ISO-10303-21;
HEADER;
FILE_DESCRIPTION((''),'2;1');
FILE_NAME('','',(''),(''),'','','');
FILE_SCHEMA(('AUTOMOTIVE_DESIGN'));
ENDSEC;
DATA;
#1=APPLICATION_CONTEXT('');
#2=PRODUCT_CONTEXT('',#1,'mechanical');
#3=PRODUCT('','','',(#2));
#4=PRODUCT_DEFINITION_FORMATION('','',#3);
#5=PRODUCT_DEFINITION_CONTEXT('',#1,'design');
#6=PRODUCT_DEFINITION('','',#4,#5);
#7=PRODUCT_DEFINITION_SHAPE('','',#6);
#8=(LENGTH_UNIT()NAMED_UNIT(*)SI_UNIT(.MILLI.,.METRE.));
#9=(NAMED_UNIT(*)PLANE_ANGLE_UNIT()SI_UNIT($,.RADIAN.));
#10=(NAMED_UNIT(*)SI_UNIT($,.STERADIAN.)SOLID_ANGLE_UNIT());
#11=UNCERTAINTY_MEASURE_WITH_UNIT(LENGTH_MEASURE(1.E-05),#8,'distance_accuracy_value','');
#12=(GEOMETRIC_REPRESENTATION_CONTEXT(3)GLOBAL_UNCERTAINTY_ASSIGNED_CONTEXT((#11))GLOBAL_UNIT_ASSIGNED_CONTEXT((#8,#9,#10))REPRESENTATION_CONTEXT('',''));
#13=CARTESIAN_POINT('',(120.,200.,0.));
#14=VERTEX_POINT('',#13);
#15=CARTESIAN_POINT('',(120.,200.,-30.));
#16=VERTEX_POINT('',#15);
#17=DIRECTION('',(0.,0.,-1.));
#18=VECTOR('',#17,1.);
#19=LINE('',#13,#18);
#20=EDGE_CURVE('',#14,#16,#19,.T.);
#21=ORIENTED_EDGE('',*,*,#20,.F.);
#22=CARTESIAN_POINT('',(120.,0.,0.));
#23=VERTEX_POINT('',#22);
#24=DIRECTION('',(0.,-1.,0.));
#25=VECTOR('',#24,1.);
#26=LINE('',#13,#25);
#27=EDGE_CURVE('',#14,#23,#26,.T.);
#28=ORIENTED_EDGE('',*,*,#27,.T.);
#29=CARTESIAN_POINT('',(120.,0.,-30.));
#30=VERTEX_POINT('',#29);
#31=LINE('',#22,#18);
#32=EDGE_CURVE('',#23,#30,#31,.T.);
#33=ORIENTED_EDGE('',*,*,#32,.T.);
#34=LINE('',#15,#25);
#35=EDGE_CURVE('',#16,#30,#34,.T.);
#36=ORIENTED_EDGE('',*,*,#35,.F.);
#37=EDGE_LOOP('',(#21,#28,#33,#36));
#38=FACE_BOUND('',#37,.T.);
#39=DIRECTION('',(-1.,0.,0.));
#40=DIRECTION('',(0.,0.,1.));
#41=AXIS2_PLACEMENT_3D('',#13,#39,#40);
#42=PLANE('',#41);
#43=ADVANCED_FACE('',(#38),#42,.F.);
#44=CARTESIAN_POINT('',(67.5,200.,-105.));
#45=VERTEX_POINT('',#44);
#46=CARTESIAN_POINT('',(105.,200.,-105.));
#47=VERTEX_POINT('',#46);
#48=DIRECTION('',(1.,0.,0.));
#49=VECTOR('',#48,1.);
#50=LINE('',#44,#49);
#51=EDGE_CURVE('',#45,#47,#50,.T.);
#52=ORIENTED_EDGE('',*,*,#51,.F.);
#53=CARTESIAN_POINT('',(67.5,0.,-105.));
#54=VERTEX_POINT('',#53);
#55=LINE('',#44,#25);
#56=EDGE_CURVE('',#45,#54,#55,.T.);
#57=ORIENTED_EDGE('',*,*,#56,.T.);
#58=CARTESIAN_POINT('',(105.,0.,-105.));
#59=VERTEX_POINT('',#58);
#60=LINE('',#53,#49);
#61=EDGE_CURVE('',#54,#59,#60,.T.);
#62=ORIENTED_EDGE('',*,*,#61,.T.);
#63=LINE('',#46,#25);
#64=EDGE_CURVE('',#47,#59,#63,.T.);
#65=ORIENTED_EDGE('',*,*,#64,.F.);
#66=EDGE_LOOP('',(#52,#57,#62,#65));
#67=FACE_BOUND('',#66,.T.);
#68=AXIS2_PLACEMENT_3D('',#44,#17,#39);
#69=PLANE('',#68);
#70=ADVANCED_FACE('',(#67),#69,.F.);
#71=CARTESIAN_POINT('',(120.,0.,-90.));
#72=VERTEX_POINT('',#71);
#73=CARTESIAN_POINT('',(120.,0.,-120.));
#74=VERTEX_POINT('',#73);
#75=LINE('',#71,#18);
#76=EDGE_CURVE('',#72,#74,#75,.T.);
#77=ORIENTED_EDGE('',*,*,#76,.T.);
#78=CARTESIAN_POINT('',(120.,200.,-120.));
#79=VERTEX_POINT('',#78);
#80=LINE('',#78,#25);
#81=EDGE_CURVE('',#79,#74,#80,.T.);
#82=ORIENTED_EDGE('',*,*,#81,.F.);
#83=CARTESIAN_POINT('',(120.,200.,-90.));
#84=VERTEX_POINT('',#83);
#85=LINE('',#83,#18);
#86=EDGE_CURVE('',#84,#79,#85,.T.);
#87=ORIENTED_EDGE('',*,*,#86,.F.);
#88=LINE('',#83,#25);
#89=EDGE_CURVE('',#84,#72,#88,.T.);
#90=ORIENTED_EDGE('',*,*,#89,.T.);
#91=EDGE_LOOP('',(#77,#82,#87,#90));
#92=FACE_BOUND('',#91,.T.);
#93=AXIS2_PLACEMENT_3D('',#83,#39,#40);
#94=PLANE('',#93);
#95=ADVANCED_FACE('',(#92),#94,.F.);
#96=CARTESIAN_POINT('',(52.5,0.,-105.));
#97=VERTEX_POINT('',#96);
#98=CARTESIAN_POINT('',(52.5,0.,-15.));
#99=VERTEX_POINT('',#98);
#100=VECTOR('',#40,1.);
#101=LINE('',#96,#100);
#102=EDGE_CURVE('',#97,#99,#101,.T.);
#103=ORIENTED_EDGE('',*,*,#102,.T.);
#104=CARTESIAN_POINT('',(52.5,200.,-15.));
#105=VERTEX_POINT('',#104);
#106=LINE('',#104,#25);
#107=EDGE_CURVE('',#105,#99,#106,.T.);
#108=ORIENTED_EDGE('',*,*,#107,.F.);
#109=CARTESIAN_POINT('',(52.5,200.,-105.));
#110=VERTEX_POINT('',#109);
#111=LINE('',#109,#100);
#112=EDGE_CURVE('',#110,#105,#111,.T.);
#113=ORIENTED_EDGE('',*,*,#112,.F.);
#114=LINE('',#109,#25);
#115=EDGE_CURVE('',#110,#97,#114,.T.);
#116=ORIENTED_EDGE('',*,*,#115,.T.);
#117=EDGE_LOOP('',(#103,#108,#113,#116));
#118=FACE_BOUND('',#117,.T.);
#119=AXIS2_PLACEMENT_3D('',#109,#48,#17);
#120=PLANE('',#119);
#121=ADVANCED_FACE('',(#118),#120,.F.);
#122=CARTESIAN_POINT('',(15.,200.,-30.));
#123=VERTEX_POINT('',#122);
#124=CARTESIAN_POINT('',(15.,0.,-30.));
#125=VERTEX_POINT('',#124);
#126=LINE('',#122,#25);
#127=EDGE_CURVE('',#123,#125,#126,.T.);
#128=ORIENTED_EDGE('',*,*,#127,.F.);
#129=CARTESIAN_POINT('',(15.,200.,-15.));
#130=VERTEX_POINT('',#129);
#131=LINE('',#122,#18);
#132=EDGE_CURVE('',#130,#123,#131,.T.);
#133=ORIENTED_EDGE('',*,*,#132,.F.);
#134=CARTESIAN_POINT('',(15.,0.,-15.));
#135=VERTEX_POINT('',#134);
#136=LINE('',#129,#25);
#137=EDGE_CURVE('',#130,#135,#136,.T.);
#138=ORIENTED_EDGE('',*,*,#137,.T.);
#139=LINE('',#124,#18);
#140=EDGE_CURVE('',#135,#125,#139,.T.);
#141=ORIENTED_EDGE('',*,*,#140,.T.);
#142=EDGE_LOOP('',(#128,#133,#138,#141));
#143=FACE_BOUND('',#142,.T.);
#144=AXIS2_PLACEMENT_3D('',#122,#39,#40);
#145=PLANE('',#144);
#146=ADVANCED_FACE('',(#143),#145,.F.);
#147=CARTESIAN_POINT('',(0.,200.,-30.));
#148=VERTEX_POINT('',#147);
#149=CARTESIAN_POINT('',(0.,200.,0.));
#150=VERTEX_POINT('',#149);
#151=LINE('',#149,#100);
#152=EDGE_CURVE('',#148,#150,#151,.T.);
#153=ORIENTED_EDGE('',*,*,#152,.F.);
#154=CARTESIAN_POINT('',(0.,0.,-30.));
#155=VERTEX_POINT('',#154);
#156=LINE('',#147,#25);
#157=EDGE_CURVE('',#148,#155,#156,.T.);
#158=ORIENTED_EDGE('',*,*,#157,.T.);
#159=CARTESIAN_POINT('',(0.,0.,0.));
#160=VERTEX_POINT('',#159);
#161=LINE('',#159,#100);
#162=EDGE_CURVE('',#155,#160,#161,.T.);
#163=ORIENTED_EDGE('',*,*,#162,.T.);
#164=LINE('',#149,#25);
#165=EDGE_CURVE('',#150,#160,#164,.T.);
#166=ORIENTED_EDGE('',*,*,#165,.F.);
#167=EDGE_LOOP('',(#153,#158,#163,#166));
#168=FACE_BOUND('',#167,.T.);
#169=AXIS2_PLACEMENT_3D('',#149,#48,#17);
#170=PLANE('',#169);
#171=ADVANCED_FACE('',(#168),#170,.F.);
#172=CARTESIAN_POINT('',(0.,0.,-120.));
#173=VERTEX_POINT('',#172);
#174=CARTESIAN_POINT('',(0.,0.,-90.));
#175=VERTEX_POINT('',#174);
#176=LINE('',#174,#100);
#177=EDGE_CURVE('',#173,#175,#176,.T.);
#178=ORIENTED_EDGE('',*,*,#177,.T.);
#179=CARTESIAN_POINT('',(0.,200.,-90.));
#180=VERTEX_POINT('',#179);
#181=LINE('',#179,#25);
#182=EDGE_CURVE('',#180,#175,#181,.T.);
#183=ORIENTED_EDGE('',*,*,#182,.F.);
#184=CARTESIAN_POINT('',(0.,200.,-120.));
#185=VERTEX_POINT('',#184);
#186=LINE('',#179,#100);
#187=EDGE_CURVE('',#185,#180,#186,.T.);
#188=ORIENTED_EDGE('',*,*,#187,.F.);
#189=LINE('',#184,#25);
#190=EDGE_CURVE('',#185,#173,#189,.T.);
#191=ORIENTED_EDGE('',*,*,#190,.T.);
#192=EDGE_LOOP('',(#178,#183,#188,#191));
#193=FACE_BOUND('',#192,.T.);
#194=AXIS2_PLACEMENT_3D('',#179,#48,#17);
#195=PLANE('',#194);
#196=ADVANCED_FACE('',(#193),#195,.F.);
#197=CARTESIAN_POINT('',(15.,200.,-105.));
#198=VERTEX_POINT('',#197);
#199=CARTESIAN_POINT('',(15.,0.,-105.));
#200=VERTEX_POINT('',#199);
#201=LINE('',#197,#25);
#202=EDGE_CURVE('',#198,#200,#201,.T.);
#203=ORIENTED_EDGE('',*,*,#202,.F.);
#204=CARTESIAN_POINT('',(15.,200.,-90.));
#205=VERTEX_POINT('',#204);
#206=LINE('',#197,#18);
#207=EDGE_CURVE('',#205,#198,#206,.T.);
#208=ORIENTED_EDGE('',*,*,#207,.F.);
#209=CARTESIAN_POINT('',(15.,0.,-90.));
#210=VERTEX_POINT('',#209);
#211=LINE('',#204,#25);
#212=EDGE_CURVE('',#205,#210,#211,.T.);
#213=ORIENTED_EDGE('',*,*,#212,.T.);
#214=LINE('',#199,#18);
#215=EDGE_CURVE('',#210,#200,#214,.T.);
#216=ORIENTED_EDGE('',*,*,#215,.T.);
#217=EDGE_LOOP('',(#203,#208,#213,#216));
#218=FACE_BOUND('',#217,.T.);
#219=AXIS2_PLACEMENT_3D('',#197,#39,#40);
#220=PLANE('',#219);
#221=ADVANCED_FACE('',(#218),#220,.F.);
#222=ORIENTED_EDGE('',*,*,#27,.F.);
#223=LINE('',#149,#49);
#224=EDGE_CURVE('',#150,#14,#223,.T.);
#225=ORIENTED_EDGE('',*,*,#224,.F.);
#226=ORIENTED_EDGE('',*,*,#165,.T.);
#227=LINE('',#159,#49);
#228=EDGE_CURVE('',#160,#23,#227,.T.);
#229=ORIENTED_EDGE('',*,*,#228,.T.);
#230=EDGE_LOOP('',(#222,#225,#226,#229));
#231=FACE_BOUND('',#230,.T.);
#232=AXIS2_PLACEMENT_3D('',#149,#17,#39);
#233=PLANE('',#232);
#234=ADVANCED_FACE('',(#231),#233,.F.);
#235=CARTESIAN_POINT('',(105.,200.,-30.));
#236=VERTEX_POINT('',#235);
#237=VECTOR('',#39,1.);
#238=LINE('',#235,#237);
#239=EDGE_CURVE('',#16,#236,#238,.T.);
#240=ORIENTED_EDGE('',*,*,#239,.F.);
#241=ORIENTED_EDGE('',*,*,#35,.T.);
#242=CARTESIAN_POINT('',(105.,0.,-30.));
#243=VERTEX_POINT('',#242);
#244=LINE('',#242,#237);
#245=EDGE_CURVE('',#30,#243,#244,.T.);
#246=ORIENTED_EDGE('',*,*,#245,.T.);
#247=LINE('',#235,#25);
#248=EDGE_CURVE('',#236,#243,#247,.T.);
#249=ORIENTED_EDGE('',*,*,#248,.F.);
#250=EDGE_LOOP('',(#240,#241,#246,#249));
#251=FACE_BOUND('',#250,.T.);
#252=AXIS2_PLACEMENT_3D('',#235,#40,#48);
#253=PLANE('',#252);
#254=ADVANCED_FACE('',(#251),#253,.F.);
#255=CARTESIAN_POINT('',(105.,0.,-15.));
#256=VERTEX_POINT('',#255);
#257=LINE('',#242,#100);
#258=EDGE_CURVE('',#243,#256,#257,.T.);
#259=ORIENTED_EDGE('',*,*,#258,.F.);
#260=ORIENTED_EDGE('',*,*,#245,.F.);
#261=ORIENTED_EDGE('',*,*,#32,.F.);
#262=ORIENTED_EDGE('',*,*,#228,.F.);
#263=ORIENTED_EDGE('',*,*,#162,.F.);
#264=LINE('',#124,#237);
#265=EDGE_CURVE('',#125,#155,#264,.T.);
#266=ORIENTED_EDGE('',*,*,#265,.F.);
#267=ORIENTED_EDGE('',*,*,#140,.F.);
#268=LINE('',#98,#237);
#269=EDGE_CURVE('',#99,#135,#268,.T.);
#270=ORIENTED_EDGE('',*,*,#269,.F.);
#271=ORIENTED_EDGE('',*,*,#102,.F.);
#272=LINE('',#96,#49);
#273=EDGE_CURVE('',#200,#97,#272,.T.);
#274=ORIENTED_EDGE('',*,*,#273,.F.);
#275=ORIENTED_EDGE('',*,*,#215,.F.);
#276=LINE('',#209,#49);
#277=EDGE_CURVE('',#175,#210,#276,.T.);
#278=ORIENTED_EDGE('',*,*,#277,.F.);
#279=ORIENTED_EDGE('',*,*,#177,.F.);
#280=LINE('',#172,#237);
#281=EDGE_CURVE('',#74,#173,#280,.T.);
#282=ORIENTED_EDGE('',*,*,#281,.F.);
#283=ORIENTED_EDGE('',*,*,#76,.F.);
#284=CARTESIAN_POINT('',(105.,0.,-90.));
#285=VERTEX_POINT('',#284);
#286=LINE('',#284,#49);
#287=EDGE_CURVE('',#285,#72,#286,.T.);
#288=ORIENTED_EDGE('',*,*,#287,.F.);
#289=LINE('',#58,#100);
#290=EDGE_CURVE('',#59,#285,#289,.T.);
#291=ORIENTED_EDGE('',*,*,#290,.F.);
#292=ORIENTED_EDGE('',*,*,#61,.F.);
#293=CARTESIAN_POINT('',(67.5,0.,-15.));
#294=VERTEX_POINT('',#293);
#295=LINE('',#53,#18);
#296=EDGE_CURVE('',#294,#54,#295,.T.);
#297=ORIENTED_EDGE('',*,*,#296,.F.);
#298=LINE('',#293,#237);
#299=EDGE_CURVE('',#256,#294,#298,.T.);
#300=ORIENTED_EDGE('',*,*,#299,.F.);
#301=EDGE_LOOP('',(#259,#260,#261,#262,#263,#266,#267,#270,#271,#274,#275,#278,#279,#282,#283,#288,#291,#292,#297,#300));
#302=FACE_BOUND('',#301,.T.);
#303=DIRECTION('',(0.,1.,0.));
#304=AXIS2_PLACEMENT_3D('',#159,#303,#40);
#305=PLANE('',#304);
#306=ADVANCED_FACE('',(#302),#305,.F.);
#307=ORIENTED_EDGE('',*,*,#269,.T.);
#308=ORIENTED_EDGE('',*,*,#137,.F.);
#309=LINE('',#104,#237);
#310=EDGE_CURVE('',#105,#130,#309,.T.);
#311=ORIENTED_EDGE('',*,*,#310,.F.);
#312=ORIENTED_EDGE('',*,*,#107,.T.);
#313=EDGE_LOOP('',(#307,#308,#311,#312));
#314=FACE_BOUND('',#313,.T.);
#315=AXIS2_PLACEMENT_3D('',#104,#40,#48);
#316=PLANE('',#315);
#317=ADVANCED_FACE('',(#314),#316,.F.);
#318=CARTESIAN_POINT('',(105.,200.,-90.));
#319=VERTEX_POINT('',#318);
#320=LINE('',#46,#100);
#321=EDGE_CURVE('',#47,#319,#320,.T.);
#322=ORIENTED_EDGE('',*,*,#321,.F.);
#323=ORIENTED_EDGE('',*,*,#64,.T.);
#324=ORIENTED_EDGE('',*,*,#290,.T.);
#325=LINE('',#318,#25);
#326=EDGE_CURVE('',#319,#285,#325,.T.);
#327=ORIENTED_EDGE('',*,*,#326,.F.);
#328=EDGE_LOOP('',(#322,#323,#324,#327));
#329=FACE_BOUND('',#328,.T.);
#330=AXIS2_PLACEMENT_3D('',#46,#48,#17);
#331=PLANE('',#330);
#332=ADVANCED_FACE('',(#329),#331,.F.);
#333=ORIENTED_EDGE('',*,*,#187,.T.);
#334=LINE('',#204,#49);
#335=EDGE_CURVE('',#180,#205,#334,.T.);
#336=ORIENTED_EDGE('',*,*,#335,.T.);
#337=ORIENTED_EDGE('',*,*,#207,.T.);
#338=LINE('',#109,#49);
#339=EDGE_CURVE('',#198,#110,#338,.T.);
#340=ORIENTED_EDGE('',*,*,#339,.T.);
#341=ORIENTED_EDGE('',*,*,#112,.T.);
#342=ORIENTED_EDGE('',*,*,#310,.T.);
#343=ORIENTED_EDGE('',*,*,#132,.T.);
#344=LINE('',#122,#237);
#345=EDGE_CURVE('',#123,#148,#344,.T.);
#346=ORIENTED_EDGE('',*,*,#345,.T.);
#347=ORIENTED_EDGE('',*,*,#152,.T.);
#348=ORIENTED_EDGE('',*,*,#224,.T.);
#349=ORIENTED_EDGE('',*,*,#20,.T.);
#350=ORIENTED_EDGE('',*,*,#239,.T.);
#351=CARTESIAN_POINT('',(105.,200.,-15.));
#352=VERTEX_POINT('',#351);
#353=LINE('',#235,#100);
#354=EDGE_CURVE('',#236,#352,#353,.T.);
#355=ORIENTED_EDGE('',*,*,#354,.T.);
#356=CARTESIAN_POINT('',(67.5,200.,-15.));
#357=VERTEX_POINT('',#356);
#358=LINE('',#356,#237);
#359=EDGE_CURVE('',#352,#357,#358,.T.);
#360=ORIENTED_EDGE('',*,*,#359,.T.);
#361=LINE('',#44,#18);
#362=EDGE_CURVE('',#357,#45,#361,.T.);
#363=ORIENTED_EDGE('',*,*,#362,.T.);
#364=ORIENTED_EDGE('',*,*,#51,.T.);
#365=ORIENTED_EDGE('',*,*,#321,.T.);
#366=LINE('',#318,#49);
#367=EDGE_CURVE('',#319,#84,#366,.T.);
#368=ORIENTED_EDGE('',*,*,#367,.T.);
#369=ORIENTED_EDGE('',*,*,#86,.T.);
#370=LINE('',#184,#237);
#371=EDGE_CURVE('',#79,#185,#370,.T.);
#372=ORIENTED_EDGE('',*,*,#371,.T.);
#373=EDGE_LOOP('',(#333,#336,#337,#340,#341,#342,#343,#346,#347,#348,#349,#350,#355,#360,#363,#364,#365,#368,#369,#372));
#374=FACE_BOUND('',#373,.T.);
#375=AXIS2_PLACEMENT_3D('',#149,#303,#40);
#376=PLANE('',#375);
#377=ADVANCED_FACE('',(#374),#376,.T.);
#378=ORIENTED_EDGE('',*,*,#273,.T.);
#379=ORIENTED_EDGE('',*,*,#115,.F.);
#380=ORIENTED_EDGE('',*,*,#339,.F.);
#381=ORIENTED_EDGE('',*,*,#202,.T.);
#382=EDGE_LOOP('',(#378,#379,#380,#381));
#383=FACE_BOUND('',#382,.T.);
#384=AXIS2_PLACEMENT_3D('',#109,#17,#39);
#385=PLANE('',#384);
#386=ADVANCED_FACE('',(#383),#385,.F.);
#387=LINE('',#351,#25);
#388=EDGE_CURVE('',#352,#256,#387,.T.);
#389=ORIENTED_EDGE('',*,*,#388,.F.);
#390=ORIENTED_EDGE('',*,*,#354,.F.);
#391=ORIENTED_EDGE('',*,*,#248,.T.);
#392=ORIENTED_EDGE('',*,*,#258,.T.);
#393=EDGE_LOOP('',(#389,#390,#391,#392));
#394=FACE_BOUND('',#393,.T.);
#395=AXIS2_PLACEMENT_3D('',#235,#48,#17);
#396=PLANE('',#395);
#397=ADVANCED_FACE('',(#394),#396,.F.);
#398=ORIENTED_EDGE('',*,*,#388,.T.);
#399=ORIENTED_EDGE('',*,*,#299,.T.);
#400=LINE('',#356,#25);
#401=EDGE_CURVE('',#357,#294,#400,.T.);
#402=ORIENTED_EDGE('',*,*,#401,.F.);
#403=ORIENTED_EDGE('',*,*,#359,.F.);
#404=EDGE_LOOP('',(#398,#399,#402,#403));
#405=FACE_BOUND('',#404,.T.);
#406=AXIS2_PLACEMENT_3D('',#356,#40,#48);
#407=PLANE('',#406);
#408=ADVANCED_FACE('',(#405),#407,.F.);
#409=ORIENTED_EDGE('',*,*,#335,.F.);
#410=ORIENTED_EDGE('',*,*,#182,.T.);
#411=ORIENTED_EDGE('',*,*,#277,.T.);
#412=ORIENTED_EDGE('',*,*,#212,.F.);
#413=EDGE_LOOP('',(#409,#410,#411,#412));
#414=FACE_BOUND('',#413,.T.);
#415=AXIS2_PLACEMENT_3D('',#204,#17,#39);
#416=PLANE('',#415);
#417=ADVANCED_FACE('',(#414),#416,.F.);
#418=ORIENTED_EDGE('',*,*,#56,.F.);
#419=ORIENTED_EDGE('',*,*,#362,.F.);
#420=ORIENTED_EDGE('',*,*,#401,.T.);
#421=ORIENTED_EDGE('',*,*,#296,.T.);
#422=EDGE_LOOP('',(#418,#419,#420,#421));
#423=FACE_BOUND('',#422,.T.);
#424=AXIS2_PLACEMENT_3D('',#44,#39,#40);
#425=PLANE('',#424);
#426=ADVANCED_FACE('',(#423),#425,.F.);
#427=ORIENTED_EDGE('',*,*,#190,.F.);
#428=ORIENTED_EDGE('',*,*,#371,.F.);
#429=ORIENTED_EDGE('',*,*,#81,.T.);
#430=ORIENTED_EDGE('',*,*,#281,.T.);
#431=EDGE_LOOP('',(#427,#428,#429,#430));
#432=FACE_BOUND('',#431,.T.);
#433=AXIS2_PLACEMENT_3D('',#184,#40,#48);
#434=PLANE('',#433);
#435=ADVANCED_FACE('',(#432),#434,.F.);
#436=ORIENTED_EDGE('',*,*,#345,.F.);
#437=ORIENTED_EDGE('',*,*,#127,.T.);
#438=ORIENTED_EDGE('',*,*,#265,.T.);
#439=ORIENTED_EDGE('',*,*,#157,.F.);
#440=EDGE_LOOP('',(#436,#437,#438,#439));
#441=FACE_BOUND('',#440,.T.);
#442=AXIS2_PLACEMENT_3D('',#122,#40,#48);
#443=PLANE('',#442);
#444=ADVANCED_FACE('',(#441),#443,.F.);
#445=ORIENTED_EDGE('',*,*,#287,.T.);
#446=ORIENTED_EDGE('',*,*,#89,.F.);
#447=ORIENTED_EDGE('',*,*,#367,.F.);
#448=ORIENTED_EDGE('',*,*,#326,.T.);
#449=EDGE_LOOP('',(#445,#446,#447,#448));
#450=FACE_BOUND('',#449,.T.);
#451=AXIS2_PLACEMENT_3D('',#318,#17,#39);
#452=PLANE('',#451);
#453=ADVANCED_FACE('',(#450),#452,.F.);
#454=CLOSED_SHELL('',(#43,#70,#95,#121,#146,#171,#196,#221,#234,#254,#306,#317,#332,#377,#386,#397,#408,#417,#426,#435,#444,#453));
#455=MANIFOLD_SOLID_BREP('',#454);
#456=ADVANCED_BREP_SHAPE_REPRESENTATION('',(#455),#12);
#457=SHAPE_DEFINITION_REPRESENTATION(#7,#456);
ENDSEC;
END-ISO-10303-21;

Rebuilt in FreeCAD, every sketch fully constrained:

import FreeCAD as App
import Part
import Sketcher
Q = App.Units.Quantity

doc = App.newDocument("Part")
body = doc.addObject("PartDesign::Body", "Body")

sketch1 = body.newObject("Sketcher::SketchObject", "Sketch")
sketch1.AttachmentSupport = (doc.getObject("XZ_Plane"), [""])
sketch1.MapMode = "FlatFace"
sketch1.addGeometry([
    Part.LineSegment(App.Vector(0, 0, 0), App.Vector(120, 0, 0)),
    Part.LineSegment(App.Vector(120, 0, 0), App.Vector(120, -30, 0)),
    Part.LineSegment(App.Vector(120, -30, 0), App.Vector(105, -30, 0)),
    Part.LineSegment(App.Vector(105, -30, 0), App.Vector(105, -15, 0)),
    Part.LineSegment(App.Vector(105, -15, 0), App.Vector(68, -15, 0)),
    Part.LineSegment(App.Vector(68, -15, 0), App.Vector(68, -105, 0)),
    Part.LineSegment(App.Vector(68, -105, 0), App.Vector(105, -105, 0)),
    Part.LineSegment(App.Vector(105, -105, 0), App.Vector(105, -90, 0)),
    Part.LineSegment(App.Vector(105, -90, 0), App.Vector(120, -90, 0)),
    Part.LineSegment(App.Vector(120, -90, 0), App.Vector(120, -120, 0)),
    Part.LineSegment(App.Vector(120, -120, 0), App.Vector(0, -120, 0)),
    Part.LineSegment(App.Vector(0, -120, 0), App.Vector(0, -90, 0)),
    Part.LineSegment(App.Vector(0, -90, 0), App.Vector(15, -90, 0)),
    Part.LineSegment(App.Vector(15, -90, 0), App.Vector(15, -105, 0)),
    Part.LineSegment(App.Vector(15, -105, 0), App.Vector(52, -105, 0)),
    Part.LineSegment(App.Vector(52, -105, 0), App.Vector(52, -15, 0)),
    Part.LineSegment(App.Vector(52, -15, 0), App.Vector(15, -15, 0)),
    Part.LineSegment(App.Vector(15, -15, 0), App.Vector(15, -30, 0)),
    Part.LineSegment(App.Vector(15, -30, 0), App.Vector(0, -30, 0)),
    Part.LineSegment(App.Vector(0, -30, 0), App.Vector(0, 0, 0)),
], False)
sketch1.addConstraint([
    Sketcher.Constraint("Coincident", 0, 2, 1, 1),
    Sketcher.Constraint("Coincident", 1, 2, 2, 1),
    Sketcher.Constraint("Coincident", 2, 2, 3, 1),
    Sketcher.Constraint("Coincident", 3, 2, 4, 1),
    Sketcher.Constraint("Coincident", 4, 2, 5, 1),
    Sketcher.Constraint("Coincident", 5, 2, 6, 1),
    Sketcher.Constraint("Coincident", 6, 2, 7, 1),
    Sketcher.Constraint("Coincident", 7, 2, 8, 1),
    Sketcher.Constraint("Coincident", 8, 2, 9, 1),
    Sketcher.Constraint("Coincident", 9, 2, 10, 1),
    Sketcher.Constraint("Coincident", 10, 2, 11, 1),
    Sketcher.Constraint("Coincident", 11, 2, 12, 1),
    Sketcher.Constraint("Coincident", 12, 2, 13, 1),
    Sketcher.Constraint("Coincident", 13, 2, 14, 1),
    Sketcher.Constraint("Coincident", 14, 2, 15, 1),
    Sketcher.Constraint("Coincident", 15, 2, 16, 1),
    Sketcher.Constraint("Coincident", 16, 2, 17, 1),
    Sketcher.Constraint("Coincident", 17, 2, 18, 1),
    Sketcher.Constraint("Coincident", 18, 2, 19, 1),
    Sketcher.Constraint("Coincident", 19, 2, 0, 1),
    Sketcher.Constraint("Horizontal", 0),
    Sketcher.Constraint("Vertical", 1),
    Sketcher.Constraint("Horizontal", 2),
    Sketcher.Constraint("Vertical", 3),
    Sketcher.Constraint("Horizontal", 4),
    Sketcher.Constraint("Vertical", 5),
    Sketcher.Constraint("Horizontal", 6),
    Sketcher.Constraint("Vertical", 7),
    Sketcher.Constraint("Horizontal", 8),
    Sketcher.Constraint("Vertical", 9),
    Sketcher.Constraint("Horizontal", 10),
    Sketcher.Constraint("Vertical", 11),
    Sketcher.Constraint("Horizontal", 12),
    Sketcher.Constraint("Vertical", 13),
    Sketcher.Constraint("Horizontal", 14),
    Sketcher.Constraint("Vertical", 15),
    Sketcher.Constraint("Horizontal", 16),
    Sketcher.Constraint("Vertical", 17),
    Sketcher.Constraint("Horizontal", 18),
    Sketcher.Constraint("Vertical", 19),
    Sketcher.Constraint("Coincident", 19, 2, -1, 1),
    Sketcher.Constraint("PointOnObject", 10, 2, -2),
    Sketcher.Constraint("Horizontal", 8, 2, 11, 2),
    Sketcher.Constraint("Horizontal", 6, 2, 13, 2),
    Sketcher.Constraint("Horizontal", 4, 2, 15, 2),
    Sketcher.Constraint("Horizontal", 2, 2, 17, 2),
    Sketcher.Constraint("Vertical", 3, 2, 6, 2),
    Sketcher.Constraint("Vertical", 1, 2, 8, 2),
    Sketcher.Constraint("Vertical", 13, 2, 16, 2),
    Sketcher.Constraint("Equal", 8, 12),
    Sketcher.Constraint("Equal", 6, 14),
    Sketcher.Constraint("Equal", 18, 3),
    Sketcher.Constraint("Equal", 3, 7),
    Sketcher.Constraint("Equal", 1, 9),
    Sketcher.Constraint("DistanceX", 0, 1, 0, 2, Q("120 mm")),
    Sketcher.Constraint("DistanceX", 2, 2, 2, 1, Q("15 mm")),
    Sketcher.Constraint("DistanceY", 1, 2, 1, 1, Q("30 mm")),
    Sketcher.Constraint("DistanceY", 5, 2, 5, 1, Q("90 mm")),
    Sketcher.Constraint("DistanceX", 4, 2, 4, 1, Q("37.5 mm")),
])
pad1 = body.newObject("PartDesign::Pad", "Pad")
pad1.Profile = sketch1
pad1.Length = 200
pad1.Reversed = True

doc.recompute()
